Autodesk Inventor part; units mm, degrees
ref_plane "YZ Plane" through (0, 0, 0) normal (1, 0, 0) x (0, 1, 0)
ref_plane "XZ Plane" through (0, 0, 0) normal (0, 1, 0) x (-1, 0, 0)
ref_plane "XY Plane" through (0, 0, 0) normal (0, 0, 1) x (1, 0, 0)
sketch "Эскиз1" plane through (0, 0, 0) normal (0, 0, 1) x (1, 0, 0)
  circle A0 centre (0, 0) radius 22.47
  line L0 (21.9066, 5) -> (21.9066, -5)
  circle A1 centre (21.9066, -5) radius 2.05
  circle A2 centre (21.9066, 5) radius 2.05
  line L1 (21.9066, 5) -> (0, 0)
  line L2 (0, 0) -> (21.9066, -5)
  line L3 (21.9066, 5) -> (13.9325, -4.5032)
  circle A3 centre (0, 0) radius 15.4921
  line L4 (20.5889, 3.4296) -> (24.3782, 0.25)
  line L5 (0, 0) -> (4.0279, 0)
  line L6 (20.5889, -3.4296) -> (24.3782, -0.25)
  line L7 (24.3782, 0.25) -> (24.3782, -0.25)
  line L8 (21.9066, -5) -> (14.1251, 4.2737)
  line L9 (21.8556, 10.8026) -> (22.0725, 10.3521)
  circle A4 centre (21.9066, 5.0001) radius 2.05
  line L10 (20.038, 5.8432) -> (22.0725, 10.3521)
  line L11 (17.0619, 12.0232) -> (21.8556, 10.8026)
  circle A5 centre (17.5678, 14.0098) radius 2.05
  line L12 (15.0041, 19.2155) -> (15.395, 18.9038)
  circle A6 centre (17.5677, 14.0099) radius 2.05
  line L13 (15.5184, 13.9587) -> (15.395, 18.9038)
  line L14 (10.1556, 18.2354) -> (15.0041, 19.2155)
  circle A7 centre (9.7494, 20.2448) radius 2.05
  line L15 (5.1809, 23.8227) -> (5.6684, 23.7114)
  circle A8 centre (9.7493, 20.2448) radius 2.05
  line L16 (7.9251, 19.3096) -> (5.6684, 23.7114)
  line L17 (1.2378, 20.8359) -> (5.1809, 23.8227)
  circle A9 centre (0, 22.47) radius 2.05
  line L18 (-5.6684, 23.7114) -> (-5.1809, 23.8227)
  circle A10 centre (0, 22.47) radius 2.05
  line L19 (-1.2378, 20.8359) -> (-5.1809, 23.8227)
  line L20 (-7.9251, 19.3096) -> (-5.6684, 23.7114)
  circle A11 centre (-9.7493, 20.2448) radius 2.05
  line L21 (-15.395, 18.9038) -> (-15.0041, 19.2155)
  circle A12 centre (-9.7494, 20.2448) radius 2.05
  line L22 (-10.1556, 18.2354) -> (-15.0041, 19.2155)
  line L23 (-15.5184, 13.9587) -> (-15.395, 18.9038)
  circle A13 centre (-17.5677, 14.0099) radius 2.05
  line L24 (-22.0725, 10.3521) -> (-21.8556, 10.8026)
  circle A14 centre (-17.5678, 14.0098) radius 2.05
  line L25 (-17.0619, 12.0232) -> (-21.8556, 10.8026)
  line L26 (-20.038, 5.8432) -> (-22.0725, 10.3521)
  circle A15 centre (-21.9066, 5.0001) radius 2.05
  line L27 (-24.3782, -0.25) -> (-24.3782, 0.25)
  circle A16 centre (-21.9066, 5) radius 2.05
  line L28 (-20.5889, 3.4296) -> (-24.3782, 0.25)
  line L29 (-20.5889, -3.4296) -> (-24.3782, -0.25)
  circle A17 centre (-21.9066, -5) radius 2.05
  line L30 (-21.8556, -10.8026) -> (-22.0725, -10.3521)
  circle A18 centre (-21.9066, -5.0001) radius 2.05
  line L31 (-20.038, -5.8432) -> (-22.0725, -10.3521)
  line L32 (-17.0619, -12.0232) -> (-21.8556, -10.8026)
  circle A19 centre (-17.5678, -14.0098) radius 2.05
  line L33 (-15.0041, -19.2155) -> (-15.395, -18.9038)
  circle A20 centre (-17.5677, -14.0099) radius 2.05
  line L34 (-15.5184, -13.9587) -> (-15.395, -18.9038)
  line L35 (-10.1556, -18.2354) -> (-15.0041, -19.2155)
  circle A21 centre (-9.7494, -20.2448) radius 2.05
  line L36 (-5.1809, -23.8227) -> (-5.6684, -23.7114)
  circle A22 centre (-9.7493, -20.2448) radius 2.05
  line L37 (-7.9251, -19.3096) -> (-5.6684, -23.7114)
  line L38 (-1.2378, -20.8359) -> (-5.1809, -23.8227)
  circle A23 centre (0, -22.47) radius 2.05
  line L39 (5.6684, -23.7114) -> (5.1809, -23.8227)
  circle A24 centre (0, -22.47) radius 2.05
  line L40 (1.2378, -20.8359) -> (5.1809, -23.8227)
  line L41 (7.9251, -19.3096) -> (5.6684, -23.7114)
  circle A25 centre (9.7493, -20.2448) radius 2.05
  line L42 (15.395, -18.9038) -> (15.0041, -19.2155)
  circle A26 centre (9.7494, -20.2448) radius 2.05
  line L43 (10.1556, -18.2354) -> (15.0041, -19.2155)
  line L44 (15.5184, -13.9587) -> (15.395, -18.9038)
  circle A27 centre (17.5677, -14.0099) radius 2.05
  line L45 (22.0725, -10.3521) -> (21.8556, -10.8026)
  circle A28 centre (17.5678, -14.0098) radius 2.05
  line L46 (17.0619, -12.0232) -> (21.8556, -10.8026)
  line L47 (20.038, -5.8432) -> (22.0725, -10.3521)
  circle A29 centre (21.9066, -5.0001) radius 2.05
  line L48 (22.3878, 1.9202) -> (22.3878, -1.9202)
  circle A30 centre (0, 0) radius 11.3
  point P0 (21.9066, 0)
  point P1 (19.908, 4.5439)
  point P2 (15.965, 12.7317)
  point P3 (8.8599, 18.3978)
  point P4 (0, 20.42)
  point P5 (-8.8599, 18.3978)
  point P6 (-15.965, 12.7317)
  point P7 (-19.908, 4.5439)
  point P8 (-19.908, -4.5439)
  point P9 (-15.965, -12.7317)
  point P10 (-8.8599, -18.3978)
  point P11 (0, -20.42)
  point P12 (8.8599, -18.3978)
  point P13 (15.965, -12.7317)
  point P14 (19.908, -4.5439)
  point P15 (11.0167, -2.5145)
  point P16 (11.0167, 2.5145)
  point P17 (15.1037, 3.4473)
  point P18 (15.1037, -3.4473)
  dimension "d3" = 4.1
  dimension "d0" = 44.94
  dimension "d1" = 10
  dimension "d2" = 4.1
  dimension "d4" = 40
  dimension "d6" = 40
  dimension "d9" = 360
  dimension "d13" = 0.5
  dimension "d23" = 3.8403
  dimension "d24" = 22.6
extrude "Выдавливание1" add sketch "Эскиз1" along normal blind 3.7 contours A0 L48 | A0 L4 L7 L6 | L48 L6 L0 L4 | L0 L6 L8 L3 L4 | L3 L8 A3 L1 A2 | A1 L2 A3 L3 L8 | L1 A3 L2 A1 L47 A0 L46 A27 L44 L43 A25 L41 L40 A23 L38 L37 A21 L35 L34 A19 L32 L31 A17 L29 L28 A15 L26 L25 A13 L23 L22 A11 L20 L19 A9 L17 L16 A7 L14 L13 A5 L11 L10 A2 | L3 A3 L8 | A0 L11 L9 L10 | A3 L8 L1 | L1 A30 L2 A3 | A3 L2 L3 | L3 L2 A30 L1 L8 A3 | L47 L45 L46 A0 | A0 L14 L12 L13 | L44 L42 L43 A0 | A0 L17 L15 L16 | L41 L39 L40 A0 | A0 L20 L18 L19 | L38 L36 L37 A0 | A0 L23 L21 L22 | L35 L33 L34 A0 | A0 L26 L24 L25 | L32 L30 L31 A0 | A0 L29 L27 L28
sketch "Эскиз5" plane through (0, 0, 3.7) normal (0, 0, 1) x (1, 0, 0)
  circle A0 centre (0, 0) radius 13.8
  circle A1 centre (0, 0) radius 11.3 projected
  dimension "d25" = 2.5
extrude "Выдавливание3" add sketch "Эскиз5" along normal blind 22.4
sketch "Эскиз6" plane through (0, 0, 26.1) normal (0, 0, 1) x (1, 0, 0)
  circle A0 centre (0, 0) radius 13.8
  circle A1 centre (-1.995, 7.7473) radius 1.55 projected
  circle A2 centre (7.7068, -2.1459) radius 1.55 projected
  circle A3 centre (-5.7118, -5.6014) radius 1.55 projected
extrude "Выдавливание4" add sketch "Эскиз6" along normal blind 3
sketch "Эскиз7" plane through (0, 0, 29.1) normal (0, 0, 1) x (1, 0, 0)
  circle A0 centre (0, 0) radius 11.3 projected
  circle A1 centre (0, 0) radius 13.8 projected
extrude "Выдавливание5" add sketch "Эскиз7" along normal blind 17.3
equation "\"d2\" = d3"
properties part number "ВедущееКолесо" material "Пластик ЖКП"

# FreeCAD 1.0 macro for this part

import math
import FreeCAD as App
import Part
import Sketcher
from FreeCAD import Vector

doc = App.newDocument("Part")
body = doc.addObject("PartDesign::Body", "Body")

# Sketch on XY plane
sketch1 = body.newObject("Sketcher::SketchObject", "Sketch")
sketch1.AttachmentSupport = (doc.getObject("XY_Plane"), [""])
sketch1.MapMode = "FlatFace"
sketch1.addGeometry([
    Part.LineSegment(Vector(24.3782, -0.25, 0), Vector(24.3782, 0.25, 0)),  # 0
    Part.LineSegment(Vector(24.3782, 0.25, 0), Vector(20.5889, 3.4296, 0)),  # 1
    Part.ArcOfCircle(Part.Circle(Vector(21.9066, 5, 0), Vector(0, 0, 1), 2.05), math.radians(155.71287), math.radians(230.000472)),  # 2
    Part.LineSegment(Vector(20.038, 5.8432, 0), Vector(22.0725, 10.3521, 0)),  # 3
    Part.LineSegment(Vector(22.0725, 10.3521, 0), Vector(21.8556, 10.8026, 0)),  # 4
    Part.LineSegment(Vector(21.8556, 10.8026, 0), Vector(17.0619, 12.0232, 0)),  # 5
    Part.ArcOfCircle(Part.Circle(Vector(17.5678, 14.0098, 0), Vector(0, 0, 1), 2.05), math.radians(-178.571676), math.radians(-104.287055)),  # 6
    Part.LineSegment(Vector(15.5184, 13.9587, 0), Vector(15.395, 18.9038, 0)),  # 7
    Part.LineSegment(Vector(15.395, 18.9038, 0), Vector(15.0041, 19.2155, 0)),  # 8
    Part.LineSegment(Vector(15.0041, 19.2155, 0), Vector(10.1556, 18.2354, 0)),  # 9
    Part.ArcOfCircle(Part.Circle(Vector(9.7494, 20.2448, 0), Vector(0, 0, 1), 2.05), math.radians(-152.858736), math.radians(-78.571674)),  # 10
    Part.LineSegment(Vector(7.9251, 19.3096, 0), Vector(5.6684, 23.7114, 0)),  # 11
    Part.LineSegment(Vector(5.6684, 23.7114, 0), Vector(5.1809, 23.8227, 0)),  # 12
    Part.LineSegment(Vector(5.1809, 23.8227, 0), Vector(1.2378, 20.8359, 0)),  # 13
    Part.ArcOfCircle(Part.Circle(Vector(0, 22.47, 0), Vector(0, 0, 1), 2.05), math.radians(-127.143244), math.radians(-52.856756)),  # 14
    Part.LineSegment(Vector(-1.2378, 20.8359, 0), Vector(-5.1809, 23.8227, 0)),  # 15
    Part.LineSegment(Vector(-5.1809, 23.8227, 0), Vector(-5.6684, 23.7114, 0)),  # 16
    Part.LineSegment(Vector(-5.6684, 23.7114, 0), Vector(-7.9251, 19.3096, 0)),  # 17
    Part.ArcOfCircle(Part.Circle(Vector(-9.7493, 20.2448, 0), Vector(0, 0, 1), 2.05), math.radians(-101.431065), math.radians(-27.142539)),  # 18
    Part.LineSegment(Vector(-10.1556, 18.2354, 0), Vector(-15.0041, 19.2155, 0)),  # 19
    Part.LineSegment(Vector(-15.0041, 19.2155, 0), Vector(-15.395, 18.9038, 0)),  # 20
    Part.LineSegment(Vector(-15.395, 18.9038, 0), Vector(-15.5184, 13.9587, 0)),  # 21
    Part.ArcOfCircle(Part.Circle(Vector(-17.5677, 14.0099, 0), Vector(0, 0, 1), 2.05), math.radians(-75.716344), math.radians(-1.431188)),  # 22
    Part.LineSegment(Vector(-17.0619, 12.0232, 0), Vector(-21.8556, 10.8026, 0)),  # 23
    Part.LineSegment(Vector(-21.8556, 10.8026, 0), Vector(-22.0725, 10.3521, 0)),  # 24
    Part.LineSegment(Vector(-22.0725, 10.3521, 0), Vector(-20.038, 5.8432, 0)),  # 25
    Part.ArcOfCircle(Part.Circle(Vector(-21.9066, 5.0001, 0), Vector(0, 0, 1), 2.05), math.radians(-50.002269), math.radians(24.284582)),  # 26
    Part.LineSegment(Vector(-20.5889, 3.4296, 0), Vector(-24.3782, 0.25, 0)),  # 27
    Part.LineSegment(Vector(-24.3782, 0.25, 0), Vector(-24.3782, -0.25, 0)),  # 28
    Part.LineSegment(Vector(-24.3782, -0.25, 0), Vector(-20.5889, -3.4296, 0)),  # 29
    Part.ArcOfCircle(Part.Circle(Vector(-21.9066, -5, 0), Vector(0, 0, 1), 2.05), math.radians(-24.28713), math.radians(50.000472)),  # 30
    Part.LineSegment(Vector(-20.038, -5.8432, 0), Vector(-22.0725, -10.3521, 0)),  # 31
    Part.LineSegment(Vector(-22.0725, -10.3521, 0), Vector(-21.8556, -10.8026, 0)),  # 32
    Part.LineSegment(Vector(-21.8556, -10.8026, 0), Vector(-17.0619, -12.0232, 0)),  # 33
    Part.ArcOfCircle(Part.Circle(Vector(-17.5678, -14.0098, 0), Vector(0, 0, 1), 2.05), math.radians(-0.001397), math.radians(75.712945)),  # 34
    Part.LineSegment(Vector(-15.51775, -14.00985, 0), Vector(-15.395, -18.9038, 0)),  # 35
    Part.LineSegment(Vector(-15.395, -18.9038, 0), Vector(-15.0041, -19.2155, 0)),  # 36
    Part.LineSegment(Vector(-15.0041, -19.2155, 0), Vector(-10.1556, -18.2354, 0)),  # 37
    Part.ArcOfCircle(Part.Circle(Vector(-9.7494, -20.2448, 0), Vector(0, 0, 1), 2.05), math.radians(27.141264), math.radians(101.428326)),  # 38
    Part.LineSegment(Vector(-7.9251, -19.3096, 0), Vector(-5.6684, -23.7114, 0)),  # 39
    Part.LineSegment(Vector(-5.6684, -23.7114, 0), Vector(-5.1809, -23.8227, 0)),  # 40
    Part.LineSegment(Vector(-5.1809, -23.8227, 0), Vector(-1.2378, -20.8359, 0)),  # 41
    Part.ArcOfCircle(Part.Circle(Vector(0, -22.47, 0), Vector(0, 0, 1), 2.05), math.radians(52.856756), math.radians(127.143244)),  # 42
    Part.LineSegment(Vector(1.2378, -20.8359, 0), Vector(5.1809, -23.8227, 0)),  # 43
    Part.LineSegment(Vector(5.1809, -23.8227, 0), Vector(5.6684, -23.7114, 0)),  # 44
    Part.LineSegment(Vector(5.6684, -23.7114, 0), Vector(7.9251, -19.3096, 0)),  # 45
    Part.ArcOfCircle(Part.Circle(Vector(9.7493, -20.2448, 0), Vector(0, 0, 1), 2.05), math.radians(78.568935), math.radians(152.857461)),  # 46
    Part.LineSegment(Vector(10.1556, -18.2354, 0), Vector(15.0041, -19.2155, 0)),  # 47
    Part.LineSegment(Vector(15.0041, -19.2155, 0), Vector(15.395, -18.9038, 0)),  # 48
    Part.LineSegment(Vector(15.395, -18.9038, 0), Vector(15.5184, -13.9587, 0)),  # 49
    Part.ArcOfCircle(Part.Circle(Vector(17.5677, -14.0099, 0), Vector(0, 0, 1), 2.05), math.radians(104.283656), math.radians(178.568812)),  # 50
    Part.LineSegment(Vector(17.0619, -12.0232, 0), Vector(21.8556, -10.8026, 0)),  # 51
    Part.LineSegment(Vector(21.8556, -10.8026, 0), Vector(22.0725, -10.3521, 0)),  # 52
    Part.LineSegment(Vector(22.0725, -10.3521, 0), Vector(20.038, -5.8432, 0)),  # 53
    Part.ArcOfCircle(Part.Circle(Vector(21.9066, -5, 0), Vector(0, 0, 1), 2.05), math.radians(129.999528), math.radians(204.28713)),  # 54
    Part.LineSegment(Vector(20.5889, -3.4296, 0), Vector(24.3782, -0.25, 0)),  # 55
    Part.Circle(Vector(0, 0, 0), Vector(0, 0, 1), 11.3),  # 56
], False)
sketch1.addConstraint([
    Sketcher.Constraint("Coincident", 0, 2, 1, 1),
    Sketcher.Constraint("Coincident", 1, 2, 2, 2),
    Sketcher.Constraint("Coincident", 2, 1, 3, 1),
    Sketcher.Constraint("Coincident", 3, 2, 4, 1),
    Sketcher.Constraint("Coincident", 4, 2, 5, 1),
    Sketcher.Constraint("Coincident", 5, 2, 6, 2),
    Sketcher.Constraint("Coincident", 6, 1, 7, 1),
    Sketcher.Constraint("Coincident", 7, 2, 8, 1),
    Sketcher.Constraint("Coincident", 8, 2, 9, 1),
    Sketcher.Constraint("Coincident", 9, 2, 10, 2),
    Sketcher.Constraint("Coincident", 10, 1, 11, 1),
    Sketcher.Constraint("Coincident", 11, 2, 12, 1),
    Sketcher.Constraint("Coincident", 12, 2, 13, 1),
    Sketcher.Constraint("Coincident", 13, 2, 14, 2),
    Sketcher.Constraint("Coincident", 14, 1, 15, 1),
    Sketcher.Constraint("Coincident", 15, 2, 16, 1),
    Sketcher.Constraint("Coincident", 16, 2, 17, 1),
    Sketcher.Constraint("Coincident", 17, 2, 18, 2),
    Sketcher.Constraint("Coincident", 18, 1, 19, 1),
    Sketcher.Constraint("Coincident", 19, 2, 20, 1),
    Sketcher.Constraint("Coincident", 20, 2, 21, 1),
    Sketcher.Constraint("Coincident", 21, 2, 22, 2),
    Sketcher.Constraint("Coincident", 22, 1, 23, 1),
    Sketcher.Constraint("Coincident", 23, 2, 24, 1),
    Sketcher.Constraint("Coincident", 24, 2, 25, 1),
    Sketcher.Constraint("Coincident", 25, 2, 26, 2),
    Sketcher.Constraint("Coincident", 26, 1, 27, 1),
    Sketcher.Constraint("Coincident", 27, 2, 28, 1),
    Sketcher.Constraint("Coincident", 28, 2, 29, 1),
    Sketcher.Constraint("Coincident", 29, 2, 30, 2),
    Sketcher.Constraint("Coincident", 30, 1, 31, 1),
    Sketcher.Constraint("Coincident", 31, 2, 32, 1),
    Sketcher.Constraint("Coincident", 32, 2, 33, 1),
    Sketcher.Constraint("Coincident", 33, 2, 34, 2),
    Sketcher.Constraint("Coincident", 34, 1, 35, 1),
    Sketcher.Constraint("Coincident", 35, 2, 36, 1),
    Sketcher.Constraint("Coincident", 36, 2, 37, 1),
    Sketcher.Constraint("Coincident", 37, 2, 38, 2),
    Sketcher.Constraint("Coincident", 38, 1, 39, 1),
    Sketcher.Constraint("Coincident", 39, 2, 40, 1),
    Sketcher.Constraint("Coincident", 40, 2, 41, 1),
    Sketcher.Constraint("Coincident", 41, 2, 42, 2),
    Sketcher.Constraint("Coincident", 42, 1, 43, 1),
    Sketcher.Constraint("Coincident", 43, 2, 44, 1),
    Sketcher.Constraint("Coincident", 44, 2, 45, 1),
    Sketcher.Constraint("Coincident", 45, 2, 46, 2),
    Sketcher.Constraint("Coincident", 46, 1, 47, 1),
    Sketcher.Constraint("Coincident", 47, 2, 48, 1),
    Sketcher.Constraint("Coincident", 48, 2, 49, 1),
    Sketcher.Constraint("Coincident", 49, 2, 50, 2),
    Sketcher.Constraint("Coincident", 50, 1, 51, 1),
    Sketcher.Constraint("Coincident", 51, 2, 52, 1),
    Sketcher.Constraint("Coincident", 52, 2, 53, 1),
    Sketcher.Constraint("Coincident", 53, 2, 54, 2),
    Sketcher.Constraint("Coincident", 54, 1, 55, 1),
    Sketcher.Constraint("Coincident", 55, 2, 0, 1),
    Sketcher.Constraint("Vertical", 0),
    Sketcher.Constraint("Vertical", 28),
    Sketcher.Constraint("Coincident", 56, 3, -1, 1),
    Sketcher.Constraint("PointOnObject", 14, 3, -2),
    Sketcher.Constraint("PointOnObject", 42, 3, -2),
    Sketcher.Constraint("Diameter", 56, 22.6),
    Sketcher.Constraint("Radius", 2, 2.05),
    Sketcher.Constraint("Radius", 6, 2.05),
    Sketcher.Constraint("Radius", 10, 2.05),
    Sketcher.Constraint("Radius", 14, 2.05),
    Sketcher.Constraint("Radius", 18, 2.05),
    Sketcher.Constraint("Radius", 22, 2.05),
    Sketcher.Constraint("Radius", 26, 2.05),
    Sketcher.Constraint("Radius", 30, 2.05),
    Sketcher.Constraint("Radius", 34, 2.05),
    Sketcher.Constraint("Radius", 38, 2.05),
    Sketcher.Constraint("Radius", 42, 2.05),
    Sketcher.Constraint("Radius", 46, 2.05),
    Sketcher.Constraint("Radius", 50, 2.05),
    Sketcher.Constraint("Radius", 54, 2.05),
    Sketcher.Constraint("DistanceY", 0, 1, 0, 2, 0.5),
    Sketcher.Constraint("DistanceY", 28, 2, 28, 1, 0.5),
    Sketcher.Constraint("Distance", 4, 0.5),
    Sketcher.Constraint("Distance", 8, 0.5),
    Sketcher.Constraint("Distance", 12, 0.5),
    Sketcher.Constraint("Distance", 16, 0.5),
    Sketcher.Constraint("Distance", 20, 0.5),
    Sketcher.Constraint("Distance", 24, 0.5),
    Sketcher.Constraint("Distance", 32, 0.5),
    Sketcher.Constraint("Distance", 36, 0.5),
    Sketcher.Constraint("Distance", 40, 0.5),
    Sketcher.Constraint("Distance", 44, 0.5),
    Sketcher.Constraint("Distance", 48, 0.5),
    Sketcher.Constraint("Distance", 52, 0.5),
    Sketcher.Constraint("DistanceY", -1, 1, 2, 3, 5.0),
    Sketcher.Constraint("DistanceY", -1, 1, 26, 3, 5.0),
    Sketcher.Constraint("DistanceY", 30, 3, -1, 1, 5.0),
    Sketcher.Constraint("DistanceY", 54, 3, -1, 1, 5.0),
    Sketcher.Constraint("DistanceY", -1, 1, 14, 3, 22.47),
    Sketcher.Constraint("DistanceY", -1, 1, 22, 3, 14.01),
    Sketcher.Constraint("DistanceY", 42, 3, -1, 1, 22.47),
    Sketcher.Constraint("DistanceY", 50, 3, -1, 1, 14.01),
    Sketcher.Constraint("DistanceY", -1, 1, 0, 2, 0.25),
    Sketcher.Constraint("DistanceY", -1, 1, 27, 2, 0.25),
    Sketcher.Constraint("DistanceX", -1, 1, 1, 2, 20.589),
    Sketcher.Constraint("DistanceX", -1, 1, 2, 1, 20.038),
    Sketcher.Constraint("DistanceY", -1, 1, 3, 2, 10.352),
    Sketcher.Constraint("DistanceX", -1, 1, 5, 2, 17.062),
    Sketcher.Constraint("DistanceX", -1, 1, 7, 2, 15.395),
    Sketcher.Constraint("DistanceX", -1, 1, 8, 2, 15.004),
    Sketcher.Constraint("DistanceX", -1, 1, 12, 2, 5.181),
    Sketcher.Constraint("DistanceY", -1, 1, 13, 2, 20.836),
    Sketcher.Constraint("DistanceY", -1, 1, 14, 1, 20.836),
    Sketcher.Constraint("DistanceX", 15, 2, -1, 1, 5.181),
    Sketcher.Constraint("DistanceX", 17, 2, -1, 1, 7.925),
    Sketcher.Constraint("DistanceX", 19, 2, -1, 1, 15.004),
    Sketcher.Constraint("DistanceX", 20, 2, -1, 1, 15.395),
    Sketcher.Constraint("DistanceX", 22, 1, -1, 1, 17.062),
    Sketcher.Constraint("DistanceY", -1, 1, 24, 2, 10.352),
    Sketcher.Constraint("DistanceX", 25, 2, -1, 1, 20.038),
    Sketcher.Constraint("DistanceX", 26, 1, -1, 1, 20.589),
    Sketcher.Constraint("DistanceX", 29, 2, -1, 1, 20.589),
    Sketcher.Constraint("DistanceX", 30, 1, -1, 1, 20.038),
    Sketcher.Constraint("DistanceY", 31, 2, -1, 1, 10.352),
    Sketcher.Constraint("DistanceX", 33, 2, -1, 1, 17.062),
    Sketcher.Constraint("DistanceX", 35, 2, -1, 1, 15.395),
    Sketcher.Constraint("DistanceX", 36, 2, -1, 1, 15.004),
    Sketcher.Constraint("DistanceX", 40, 2, -1, 1, 5.181),
    Sketcher.Constraint("DistanceY", 41, 2, -1, 1, 20.836),
    Sketcher.Constraint("DistanceY", 42, 1, -1, 1, 20.836),
    Sketcher.Constraint("DistanceX", -1, 1, 43, 2, 5.181),
    Sketcher.Constraint("DistanceX", -1, 1, 45, 2, 7.925),
    Sketcher.Constraint("DistanceX", -1, 1, 47, 2, 15.004),
    Sketcher.Constraint("DistanceX", -1, 1, 48, 2, 15.395),
    Sketcher.Constraint("DistanceX", -1, 1, 50, 1, 17.062),
    Sketcher.Constraint("DistanceY", 52, 2, -1, 1, 10.352),
    Sketcher.Constraint("DistanceX", -1, 1, 53, 2, 20.038),
    Sketcher.Constraint("DistanceX", -1, 1, 54, 1, 20.589),
    Sketcher.Constraint("Distance", 1, 4.9466),
    Sketcher.Constraint("Distance", 3, 4.9467),
    Sketcher.Constraint("Distance", 5, 4.9467),
    Sketcher.Constraint("Distance", 7, 4.9466),
    Sketcher.Constraint("Distance", 9, 4.9466),
    Sketcher.Constraint("Distance", 11, 4.9466),
    Sketcher.Constraint("Distance", 13, 4.9466),
    Sketcher.Constraint("Distance", 15, 4.9466),
    Sketcher.Constraint("Distance", 17, 4.9466),
    Sketcher.Constraint("Distance", 19, 4.9466),
    Sketcher.Constraint("Distance", 21, 4.9466),
    Sketcher.Constraint("Distance", 23, 4.9467),
    Sketcher.Constraint("Distance", 25, 4.9467),
    Sketcher.Constraint("Distance", 27, 4.9466),
    Sketcher.Constraint("Distance", 29, 4.9466),
    Sketcher.Constraint("Distance", 31, 4.9467),
    Sketcher.Constraint("Distance", 33, 4.9467),
    Sketcher.Constraint("Distance", 35, 4.8955),
    Sketcher.Constraint("Distance", 37, 4.9466),
    Sketcher.Constraint("Distance", 39, 4.9466),
    Sketcher.Constraint("Distance", 41, 4.9466),
    Sketcher.Constraint("Distance", 43, 4.9466),
    Sketcher.Constraint("Distance", 45, 4.9466),
    Sketcher.Constraint("Distance", 47, 4.9466),
    Sketcher.Constraint("Distance", 49, 4.9466),
    Sketcher.Constraint("Distance", 51, 4.9467),
    Sketcher.Constraint("Distance", 53, 4.9467),
    Sketcher.Constraint("Distance", 55, 4.9466),
    Sketcher.Constraint("DistanceX", -1, 1, 2, 3, 21.9066),
    Sketcher.Constraint("DistanceX", -1, 1, 6, 3, 17.5678),
    Sketcher.Constraint("DistanceY", -1, 1, 6, 3, 14.0098),
    Sketcher.Constraint("DistanceX", -1, 1, 10, 3, 9.7494),
    Sketcher.Constraint("DistanceY", -1, 1, 10, 3, 20.2448),
    Sketcher.Constraint("DistanceX", 18, 3, -1, 1, 9.7493),
    Sketcher.Constraint("DistanceY", -1, 1, 18, 3, 20.2448),
    Sketcher.Constraint("DistanceX", 22, 3, -1, 1, 17.5677),
    Sketcher.Constraint("DistanceX", 26, 3, -1, 1, 21.9066),
    Sketcher.Constraint("DistanceX", 34, 3, -1, 1, 17.5678),
    Sketcher.Constraint("DistanceY", 34, 3, -1, 1, 14.0098),
    Sketcher.Constraint("DistanceX", 38, 3, -1, 1, 9.7494),
    Sketcher.Constraint("DistanceY", 38, 3, -1, 1, 20.2448),
    Sketcher.Constraint("DistanceX", -1, 1, 46, 3, 9.7493),
    Sketcher.Constraint("DistanceY", 46, 3, -1, 1, 20.2448),
    Sketcher.Constraint("DistanceX", -1, 1, 50, 3, 17.5677),
    Sketcher.Constraint("DistanceX", -1, 1, 6, 1, 15.5184),
    Sketcher.Constraint("DistanceX", -1, 1, 10, 1, 7.9251),
    Sketcher.Constraint("DistanceX", 18, 1, -1, 1, 10.1556),
    Sketcher.Constraint("DistanceY", 34, 1, -1, 1, 14.0098),
    Sketcher.Constraint("DistanceX", 38, 1, -1, 1, 7.9251),
    Sketcher.Constraint("DistanceX", -1, 1, 46, 1, 10.1556),
])
pad1 = body.newObject("PartDesign::Pad", "Pad")
pad1.Profile = sketch1
pad1.Length = 3.7

# Sketch on XY plane
sketch2 = body.newObject("Sketcher::SketchObject", "Sketch001")
sketch2.AttachmentSupport = (doc.getObject("XY_Plane"), [""])
sketch2.MapMode = "FlatFace"
sketch2.AttachmentOffset = App.Placement(Vector(0, 0, 3.7), App.Rotation())
sketch2.addGeometry([
    Part.Circle(Vector(0, 0, 0), Vector(0, 0, 1), 13.8),
    Part.Circle(Vector(0, 0, 0), Vector(0, 0, 1), 11.3),
], False)
sketch2.addConstraint([
    Sketcher.Constraint("Coincident", 0, 3, -1, 1),
    Sketcher.Constraint("Coincident", 1, 3, -1, 1),
    Sketcher.Constraint("Diameter", 0, 27.6),
    Sketcher.Constraint("Diameter", 1, 22.6),
])
pad2 = body.newObject("PartDesign::Pad", "Pad001")
pad2.Profile = sketch2
pad2.Length = 22.4

# Sketch on XY plane
sketch3 = body.newObject("Sketcher::SketchObject", "Sketch002")
sketch3.AttachmentSupport = (doc.getObject("XY_Plane"), [""])
sketch3.MapMode = "FlatFace"
sketch3.AttachmentOffset = App.Placement(Vector(0, 0, 26.1), App.Rotation())
sketch3.addGeometry([
    Part.Circle(Vector(0, 0, 0), Vector(0, 0, 1), 13.8),
    Part.Circle(Vector(-5.7118, -5.6014, 0), Vector(0, 0, 1), 1.55),
    Part.Circle(Vector(7.7068, -2.1459, 0), Vector(0, 0, 1), 1.55),
    Part.Circle(Vector(-1.995, 7.7473, 0), Vector(0, 0, 1), 1.55),
], False)
sketch3.addConstraint([
    Sketcher.Constraint("Coincident", 0, 3, -1, 1),
    Sketcher.Constraint("Equal", 1, 2),
    Sketcher.Constraint("Equal", 2, 3),
    Sketcher.Constraint("Diameter", 0, 27.6),
    Sketcher.Constraint("Diameter", 1, 3.1),
    Sketcher.Constraint("DistanceY", 2, 3, -1, 1, 2.146),
    Sketcher.Constraint("DistanceX", 3, 3, -1, 1, 1.995),
    Sketcher.Constraint("DistanceX", 1, 3, -1, 1, 5.7118),
    Sketcher.Constraint("DistanceY", 1, 3, -1, 1, 5.6014),
    Sketcher.Constraint("DistanceX", -1, 1, 2, 3, 7.7068),
    Sketcher.Constraint("DistanceY", -1, 1, 3, 3, 7.7473),
])
pad3 = body.newObject("PartDesign::Pad", "Pad002")
pad3.Profile = sketch3
pad3.Length = 3

# Sketch on XY plane
sketch4 = body.newObject("Sketcher::SketchObject", "Sketch003")
sketch4.AttachmentSupport = (doc.getObject("XY_Plane"), [""])
sketch4.MapMode = "FlatFace"
sketch4.AttachmentOffset = App.Placement(Vector(0, 0, 29.1), App.Rotation())
sketch4.addGeometry([
    Part.Circle(Vector(0, 0, 0), Vector(0, 0, 1), 13.8),
    Part.Circle(Vector(0, 0, 0), Vector(0, 0, 1), 11.3),
], False)
sketch4.addConstraint([
    Sketcher.Constraint("Coincident", 0, 3, -1, 1),
    Sketcher.Constraint("Coincident", 1, 3, -1, 1),
    Sketcher.Constraint("Diameter", 0, 27.6),
    Sketcher.Constraint("Diameter", 1, 22.6),
])
pad4 = body.newObject("PartDesign::Pad", "Pad003")
pad4.Profile = sketch4
pad4.Length = 17.3

doc.recompute()
